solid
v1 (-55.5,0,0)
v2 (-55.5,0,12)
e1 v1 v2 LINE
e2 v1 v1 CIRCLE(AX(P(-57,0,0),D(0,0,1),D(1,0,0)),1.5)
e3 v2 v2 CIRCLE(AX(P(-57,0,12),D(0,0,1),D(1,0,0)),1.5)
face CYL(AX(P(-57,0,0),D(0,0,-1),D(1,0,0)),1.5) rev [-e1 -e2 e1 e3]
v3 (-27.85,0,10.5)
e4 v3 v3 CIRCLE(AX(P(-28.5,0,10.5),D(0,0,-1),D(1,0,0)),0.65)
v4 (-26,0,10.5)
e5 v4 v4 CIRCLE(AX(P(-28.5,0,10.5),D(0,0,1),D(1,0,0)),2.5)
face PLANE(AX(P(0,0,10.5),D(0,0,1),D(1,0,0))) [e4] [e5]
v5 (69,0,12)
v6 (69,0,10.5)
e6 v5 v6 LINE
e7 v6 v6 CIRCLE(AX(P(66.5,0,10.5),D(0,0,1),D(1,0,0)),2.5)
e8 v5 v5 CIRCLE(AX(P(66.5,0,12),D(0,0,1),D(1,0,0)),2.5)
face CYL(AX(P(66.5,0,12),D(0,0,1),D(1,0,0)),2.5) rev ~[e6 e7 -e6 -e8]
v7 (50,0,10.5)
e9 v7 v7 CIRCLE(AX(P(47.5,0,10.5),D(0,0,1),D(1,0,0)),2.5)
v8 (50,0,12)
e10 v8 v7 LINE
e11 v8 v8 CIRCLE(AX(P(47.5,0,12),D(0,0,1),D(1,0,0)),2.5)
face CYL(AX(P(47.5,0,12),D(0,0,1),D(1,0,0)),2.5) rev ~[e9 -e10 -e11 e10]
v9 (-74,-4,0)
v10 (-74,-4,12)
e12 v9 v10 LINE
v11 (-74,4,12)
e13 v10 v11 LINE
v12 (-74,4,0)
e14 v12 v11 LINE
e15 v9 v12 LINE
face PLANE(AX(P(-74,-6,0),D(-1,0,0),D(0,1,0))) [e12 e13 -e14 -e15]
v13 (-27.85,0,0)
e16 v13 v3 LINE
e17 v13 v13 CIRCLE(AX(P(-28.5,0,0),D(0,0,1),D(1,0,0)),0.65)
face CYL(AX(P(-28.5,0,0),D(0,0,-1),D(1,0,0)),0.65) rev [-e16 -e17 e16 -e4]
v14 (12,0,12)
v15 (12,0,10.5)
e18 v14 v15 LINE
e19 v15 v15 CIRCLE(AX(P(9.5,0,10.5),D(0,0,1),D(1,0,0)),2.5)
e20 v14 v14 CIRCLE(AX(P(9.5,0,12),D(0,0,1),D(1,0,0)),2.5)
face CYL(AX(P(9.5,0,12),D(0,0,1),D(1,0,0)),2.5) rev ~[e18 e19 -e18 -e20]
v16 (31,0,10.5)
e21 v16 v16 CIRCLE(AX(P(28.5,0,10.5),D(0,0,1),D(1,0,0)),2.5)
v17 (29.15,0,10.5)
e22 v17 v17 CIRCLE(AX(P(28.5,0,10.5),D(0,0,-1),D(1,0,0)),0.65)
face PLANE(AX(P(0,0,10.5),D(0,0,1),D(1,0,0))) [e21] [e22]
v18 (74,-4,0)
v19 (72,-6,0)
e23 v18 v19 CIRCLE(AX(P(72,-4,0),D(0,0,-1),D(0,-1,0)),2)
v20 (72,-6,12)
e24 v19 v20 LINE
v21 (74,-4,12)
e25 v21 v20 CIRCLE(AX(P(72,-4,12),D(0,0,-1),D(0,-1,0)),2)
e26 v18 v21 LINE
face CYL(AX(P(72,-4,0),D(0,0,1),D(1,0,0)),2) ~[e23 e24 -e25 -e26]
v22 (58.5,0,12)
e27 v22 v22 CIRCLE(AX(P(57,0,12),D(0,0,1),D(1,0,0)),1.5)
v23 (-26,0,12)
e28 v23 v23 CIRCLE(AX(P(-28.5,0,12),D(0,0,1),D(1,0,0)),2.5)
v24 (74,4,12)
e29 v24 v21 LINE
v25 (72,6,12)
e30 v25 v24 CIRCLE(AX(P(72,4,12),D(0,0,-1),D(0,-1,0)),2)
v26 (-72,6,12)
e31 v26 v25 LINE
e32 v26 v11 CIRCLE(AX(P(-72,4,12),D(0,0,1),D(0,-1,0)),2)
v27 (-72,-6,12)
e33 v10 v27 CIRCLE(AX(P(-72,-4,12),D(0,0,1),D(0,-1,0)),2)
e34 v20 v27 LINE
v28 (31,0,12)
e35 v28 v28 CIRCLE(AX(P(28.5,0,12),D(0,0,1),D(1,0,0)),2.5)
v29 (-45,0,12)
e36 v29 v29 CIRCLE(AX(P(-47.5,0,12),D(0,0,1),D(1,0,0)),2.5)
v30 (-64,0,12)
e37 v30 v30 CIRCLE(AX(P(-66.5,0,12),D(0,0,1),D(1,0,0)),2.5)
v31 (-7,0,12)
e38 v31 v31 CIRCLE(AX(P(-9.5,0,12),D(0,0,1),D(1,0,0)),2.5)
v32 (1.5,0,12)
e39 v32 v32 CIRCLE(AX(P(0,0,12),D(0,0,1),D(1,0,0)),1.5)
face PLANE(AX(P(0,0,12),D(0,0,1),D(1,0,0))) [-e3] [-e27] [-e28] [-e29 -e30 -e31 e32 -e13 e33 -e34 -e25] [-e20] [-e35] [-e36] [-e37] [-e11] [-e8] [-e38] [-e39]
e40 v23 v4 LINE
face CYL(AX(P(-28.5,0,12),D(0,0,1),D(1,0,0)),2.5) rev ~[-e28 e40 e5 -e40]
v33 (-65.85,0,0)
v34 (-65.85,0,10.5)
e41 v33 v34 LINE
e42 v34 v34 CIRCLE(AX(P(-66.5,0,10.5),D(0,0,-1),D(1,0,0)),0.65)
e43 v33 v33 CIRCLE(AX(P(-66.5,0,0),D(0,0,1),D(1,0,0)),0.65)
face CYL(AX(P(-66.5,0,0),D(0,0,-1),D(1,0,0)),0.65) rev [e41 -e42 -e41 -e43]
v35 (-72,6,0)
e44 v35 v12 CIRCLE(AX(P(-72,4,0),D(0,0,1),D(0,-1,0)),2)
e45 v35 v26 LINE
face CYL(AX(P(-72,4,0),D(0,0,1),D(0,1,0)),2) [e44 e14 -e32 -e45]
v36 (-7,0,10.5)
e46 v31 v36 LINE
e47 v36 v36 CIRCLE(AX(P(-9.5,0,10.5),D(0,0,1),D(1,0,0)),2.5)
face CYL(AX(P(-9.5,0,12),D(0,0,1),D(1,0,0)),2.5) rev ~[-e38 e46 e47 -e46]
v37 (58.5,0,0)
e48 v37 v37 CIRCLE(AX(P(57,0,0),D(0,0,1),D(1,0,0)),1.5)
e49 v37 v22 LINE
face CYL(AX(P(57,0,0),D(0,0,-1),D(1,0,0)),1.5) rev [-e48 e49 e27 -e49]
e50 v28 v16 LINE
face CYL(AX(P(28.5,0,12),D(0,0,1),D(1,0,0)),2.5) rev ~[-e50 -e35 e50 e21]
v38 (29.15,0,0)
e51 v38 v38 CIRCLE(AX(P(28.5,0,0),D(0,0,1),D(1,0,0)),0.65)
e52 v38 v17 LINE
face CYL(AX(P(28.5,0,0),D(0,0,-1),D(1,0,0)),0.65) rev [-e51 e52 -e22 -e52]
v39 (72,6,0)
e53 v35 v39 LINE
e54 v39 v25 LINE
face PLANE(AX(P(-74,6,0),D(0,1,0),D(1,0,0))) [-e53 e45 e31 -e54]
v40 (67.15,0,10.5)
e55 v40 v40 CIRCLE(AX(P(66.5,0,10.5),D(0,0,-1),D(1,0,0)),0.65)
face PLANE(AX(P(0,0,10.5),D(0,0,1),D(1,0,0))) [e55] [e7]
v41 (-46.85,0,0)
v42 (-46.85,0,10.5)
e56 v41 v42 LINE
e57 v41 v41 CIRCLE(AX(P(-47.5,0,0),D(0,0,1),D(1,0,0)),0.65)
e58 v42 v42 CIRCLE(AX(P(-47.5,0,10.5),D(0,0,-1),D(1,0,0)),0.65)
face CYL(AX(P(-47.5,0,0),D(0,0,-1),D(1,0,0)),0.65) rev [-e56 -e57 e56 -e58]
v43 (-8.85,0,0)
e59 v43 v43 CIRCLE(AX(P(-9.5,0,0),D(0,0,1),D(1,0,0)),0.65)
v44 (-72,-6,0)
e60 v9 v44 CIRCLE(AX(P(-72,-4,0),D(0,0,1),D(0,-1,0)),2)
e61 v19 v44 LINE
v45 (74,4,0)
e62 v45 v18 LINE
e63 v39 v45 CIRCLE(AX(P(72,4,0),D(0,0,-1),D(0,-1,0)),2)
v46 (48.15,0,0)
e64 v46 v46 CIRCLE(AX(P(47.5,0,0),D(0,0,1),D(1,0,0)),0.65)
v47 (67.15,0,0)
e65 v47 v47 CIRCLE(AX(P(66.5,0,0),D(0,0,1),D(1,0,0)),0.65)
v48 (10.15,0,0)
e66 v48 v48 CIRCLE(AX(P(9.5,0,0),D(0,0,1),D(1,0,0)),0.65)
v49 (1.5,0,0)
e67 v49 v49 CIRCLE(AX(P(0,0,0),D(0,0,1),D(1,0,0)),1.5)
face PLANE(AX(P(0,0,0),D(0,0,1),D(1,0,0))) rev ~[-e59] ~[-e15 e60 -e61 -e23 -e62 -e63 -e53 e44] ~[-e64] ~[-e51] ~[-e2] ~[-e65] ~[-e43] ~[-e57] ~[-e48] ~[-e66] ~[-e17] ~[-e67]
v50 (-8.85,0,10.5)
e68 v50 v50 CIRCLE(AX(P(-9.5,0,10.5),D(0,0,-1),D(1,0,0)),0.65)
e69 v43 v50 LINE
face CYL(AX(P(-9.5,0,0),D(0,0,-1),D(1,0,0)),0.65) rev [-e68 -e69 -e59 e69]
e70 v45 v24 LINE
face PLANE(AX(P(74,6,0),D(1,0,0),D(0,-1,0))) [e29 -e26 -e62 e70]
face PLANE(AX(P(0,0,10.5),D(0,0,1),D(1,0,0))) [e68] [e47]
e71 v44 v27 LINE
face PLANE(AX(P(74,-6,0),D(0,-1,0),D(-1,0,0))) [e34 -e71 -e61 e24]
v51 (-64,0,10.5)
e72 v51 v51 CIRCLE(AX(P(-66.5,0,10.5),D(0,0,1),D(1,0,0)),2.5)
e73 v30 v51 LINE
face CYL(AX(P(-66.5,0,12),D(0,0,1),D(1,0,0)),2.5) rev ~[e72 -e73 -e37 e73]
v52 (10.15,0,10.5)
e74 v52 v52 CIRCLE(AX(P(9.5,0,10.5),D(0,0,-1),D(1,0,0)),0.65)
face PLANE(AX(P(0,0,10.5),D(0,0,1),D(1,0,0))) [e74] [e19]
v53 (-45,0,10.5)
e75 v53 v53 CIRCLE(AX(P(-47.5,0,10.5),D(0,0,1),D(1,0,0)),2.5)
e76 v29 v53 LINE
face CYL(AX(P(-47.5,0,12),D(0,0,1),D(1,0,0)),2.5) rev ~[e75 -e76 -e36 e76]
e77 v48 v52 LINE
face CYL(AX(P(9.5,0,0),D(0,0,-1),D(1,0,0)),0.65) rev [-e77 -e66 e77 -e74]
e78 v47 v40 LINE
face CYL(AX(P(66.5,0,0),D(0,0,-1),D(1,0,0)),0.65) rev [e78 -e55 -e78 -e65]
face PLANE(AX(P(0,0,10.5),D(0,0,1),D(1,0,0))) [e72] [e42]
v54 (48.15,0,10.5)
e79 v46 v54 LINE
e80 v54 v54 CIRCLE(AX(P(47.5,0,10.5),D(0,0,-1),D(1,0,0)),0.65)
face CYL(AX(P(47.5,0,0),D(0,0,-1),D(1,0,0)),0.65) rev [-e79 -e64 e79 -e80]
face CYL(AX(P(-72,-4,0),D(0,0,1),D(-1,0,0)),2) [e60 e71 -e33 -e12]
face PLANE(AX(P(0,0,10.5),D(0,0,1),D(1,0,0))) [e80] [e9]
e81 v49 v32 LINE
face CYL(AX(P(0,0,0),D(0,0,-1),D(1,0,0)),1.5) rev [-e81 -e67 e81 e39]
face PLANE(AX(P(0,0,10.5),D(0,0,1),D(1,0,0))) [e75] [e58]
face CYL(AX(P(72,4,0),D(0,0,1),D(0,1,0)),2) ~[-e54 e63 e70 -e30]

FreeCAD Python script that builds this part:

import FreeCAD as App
import Part
import Sketcher

V = App.Vector


def edges_at(feature, points):
    """Names of the edges that pass closest to the given points."""
    edges = feature.Shape.Edges
    near = lambda p: min(range(len(edges)), key=lambda i: edges[i].distToShape(Part.Vertex(*p))[0])
    return sorted({f"Edge{near(p) + 1}" for p in points})

doc = App.newDocument("Part")
body = doc.addObject("PartDesign::Body", "Body")

# Sketch on XY plane
sketch1 = body.newObject("Sketcher::SketchObject", "Sketch")
sketch1.AttachmentSupport = (doc.getObject("XY_Plane"), [""])
sketch1.MapMode = "FlatFace"
sketch1.addGeometry(Part.LineSegment(V(74, 6, 0), V(-74, 6, 0)), False)
sketch1.addGeometry(Part.LineSegment(V(-74, 6, 0), V(-74, -6, 0)), False)
sketch1.addGeometry(Part.LineSegment(V(-74, -6, 0), V(74, -6, 0)), False)
sketch1.addGeometry(Part.LineSegment(V(74, -6, 0), V(74, 6, 0)), False)
sketch1.addGeometry(Part.Circle(V(-66.5, 0, 0), V(0, 0, 1), 0.7), False)
sketch1.addGeometry(Part.Circle(V(-57, 0, 0), V(0, 0, 1), 1.5), False)
sketch1.addGeometry(Part.Circle(V(-47.5, 0, 0), V(0, 0, 1), 0.7), False)
sketch1.addGeometry(Part.Circle(V(-28.5, 0, 0), V(0, 0, 1), 0.7), False)
sketch1.addGeometry(Part.Circle(V(-9.5, 0, 0), V(0, 0, 1), 0.7), False)
sketch1.addGeometry(Part.Circle(V(0, 0, 0), V(0, 0, 1), 1.5), False)
sketch1.addGeometry(Part.Circle(V(9.5, 0, 0), V(0, 0, 1), 0.7), False)
sketch1.addGeometry(Part.Circle(V(28.5, 0, 0), V(0, 0, 1), 0.7), False)
sketch1.addGeometry(Part.Circle(V(47.5, 0, 0), V(0, 0, 1), 0.7), False)
sketch1.addGeometry(Part.Circle(V(57, 0, 0), V(0, 0, 1), 1.5), False)
sketch1.addGeometry(Part.Circle(V(66.5, 0, 0), V(0, 0, 1), 0.7), False)
sketch1.addConstraint(Sketcher.Constraint("Coincident", 0, 2, 1, 1))
sketch1.addConstraint(Sketcher.Constraint("Coincident", 1, 2, 2, 1))
sketch1.addConstraint(Sketcher.Constraint("Coincident", 2, 2, 3, 1))
sketch1.addConstraint(Sketcher.Constraint("Coincident", 3, 2, 0, 1))
sketch1.addConstraint(Sketcher.Constraint("Horizontal", 0))
sketch1.addConstraint(Sketcher.Constraint("Vertical", 1))
sketch1.addConstraint(Sketcher.Constraint("Horizontal", 2))
sketch1.addConstraint(Sketcher.Constraint("Vertical", 3))
sketch1.addConstraint(Sketcher.Constraint("Coincident", 9, 3, -1, 1))
sketch1.addConstraint(Sketcher.Constraint("Equal", 4, 6))
sketch1.addConstraint(Sketcher.Constraint("Equal", 6, 7))
sketch1.addConstraint(Sketcher.Constraint("Equal", 7, 8))
sketch1.addConstraint(Sketcher.Constraint("Equal", 5, 9))
sketch1.addConstraint(Sketcher.Constraint("Equal", 8, 10))
sketch1.addConstraint(Sketcher.Constraint("Equal", 10, 11))
sketch1.addConstraint(Sketcher.Constraint("Equal", 11, 12))
sketch1.addConstraint(Sketcher.Constraint("Equal", 9, 13))
sketch1.addConstraint(Sketcher.Constraint("Equal", 12, 14))
sketch1.addConstraint(Sketcher.Constraint("Symmetric", 8, 3, 10, 3, -1, 1))
sketch1.addConstraint(Sketcher.Constraint("Symmetric", 7, 3, 11, 3, -1, 1))
sketch1.addConstraint(Sketcher.Constraint("Symmetric", 6, 3, 12, 3, -1, 1))
sketch1.addConstraint(Sketcher.Constraint("Symmetric", 5, 3, 13, 3, -1, 1))
sketch1.addConstraint(Sketcher.Constraint("Symmetric", 4, 3, 14, 3, -1, 1))
sketch1.addConstraint(Sketcher.Constraint("Symmetric", 0, 2, 2, 2, -1, 1))
sketch1.addConstraint(Sketcher.Constraint("PointOnObject", 4, 3, -1))
sketch1.addConstraint(Sketcher.Constraint("PointOnObject", 5, 3, -1))
sketch1.addConstraint(Sketcher.Constraint("PointOnObject", 6, 3, -1))
sketch1.addConstraint(Sketcher.Constraint("PointOnObject", 7, 3, -1))
sketch1.addConstraint(Sketcher.Constraint("PointOnObject", 8, 3, -1))
sketch1.addConstraint(Sketcher.Constraint("Diameter", 5, 3.0))
sketch1.addConstraint(Sketcher.Constraint("Diameter", 4, 1.3))
sketch1.addConstraint(Sketcher.Constraint("DistanceX", 0, 2, 0, 1, 148.0))
sketch1.addConstraint(Sketcher.Constraint("DistanceY", 1, 2, 1, 1, 12.0))
sketch1.addConstraint(Sketcher.Constraint("DistanceX", 5, 3, -1, 1, 57.0))
sketch1.addConstraint(Sketcher.Constraint("DistanceX", 4, 3, 6, 3, 19.0))
sketch1.addConstraint(Sketcher.Constraint("DistanceX", 6, 3, 7, 3, 19.0))
sketch1.addConstraint(Sketcher.Constraint("DistanceX", 7, 3, 8, 3, 19.0))
sketch1.addConstraint(Sketcher.Constraint("DistanceX", 8, 3, 10, 3, 19.0))
pad1 = body.newObject("PartDesign::Pad", "Pad")
pad1.Profile = sketch1
pad1.Length = 12

# Sketch on XY plane
sketch2 = body.newObject("Sketcher::SketchObject", "Sketch001")
sketch2.AttachmentSupport = (doc.getObject("XY_Plane"), [""])
sketch2.MapMode = "FlatFace"
sketch2.AttachmentOffset = App.Placement(V(0, 0, 12), App.Rotation())
sketch2.addGeometry(Part.Circle(V(-66.5, 0, 0), V(0, 0, 1), 2.5), False)
sketch2.addGeometry(Part.Circle(V(-47.5, 0, 0), V(0, 0, 1), 2.5), False)
sketch2.addGeometry(Part.Circle(V(-28.5, 0, 0), V(0, 0, 1), 2.5), False)
sketch2.addGeometry(Part.Circle(V(-9.5, 0, 0), V(0, 0, 1), 2.5), False)
sketch2.addGeometry(Part.Circle(V(9.5, 0, 0), V(0, 0, 1), 2.5), False)
sketch2.addGeometry(Part.Circle(V(28.5, 0, 0), V(0, 0, 1), 2.5), False)
sketch2.addGeometry(Part.Circle(V(47.5, 0, 0), V(0, 0, 1), 2.5), False)
sketch2.addGeometry(Part.Circle(V(66.5, 0, 0), V(0, 0, 1), 2.5), False)
sketch2.addConstraint(Sketcher.Constraint("Equal", 0, 1))
sketch2.addConstraint(Sketcher.Constraint("Equal", 1, 2))
sketch2.addConstraint(Sketcher.Constraint("Equal", 2, 3))
sketch2.addConstraint(Sketcher.Constraint("Equal", 3, 4))
sketch2.addConstraint(Sketcher.Constraint("Equal", 4, 5))
sketch2.addConstraint(Sketcher.Constraint("Equal", 5, 6))
sketch2.addConstraint(Sketcher.Constraint("Equal", 6, 7))
sketch2.addConstraint(Sketcher.Constraint("Symmetric", 3, 3, 4, 3, -1, 1))
sketch2.addConstraint(Sketcher.Constraint("Symmetric", 2, 3, 5, 3, -1, 1))
sketch2.addConstraint(Sketcher.Constraint("Symmetric", 1, 3, 6, 3, -1, 1))
sketch2.addConstraint(Sketcher.Constraint("Symmetric", 0, 3, 7, 3, -1, 1))
sketch2.addConstraint(Sketcher.Constraint("PointOnObject", 0, 3, -1))
sketch2.addConstraint(Sketcher.Constraint("PointOnObject", 1, 3, -1))
sketch2.addConstraint(Sketcher.Constraint("PointOnObject", 2, 3, -1))
sketch2.addConstraint(Sketcher.Constraint("PointOnObject", 3, 3, -1))
sketch2.addConstraint(Sketcher.Constraint("Diameter", 0, 5.0))
sketch2.addConstraint(Sketcher.Constraint("DistanceX", 0, 3, 1, 3, 19.0))
sketch2.addConstraint(Sketcher.Constraint("DistanceX", 1, 3, 2, 3, 19.0))
sketch2.addConstraint(Sketcher.Constraint("DistanceX", 2, 3, 3, 3, 19.0))
sketch2.addConstraint(Sketcher.Constraint("DistanceX", 3, 3, 4, 3, 19.0))
pocket1 = body.newObject("PartDesign::Pocket", "Pocket")
pocket1.Profile = sketch2
pocket1.Length = 1.5
doc.recompute()

fillet = body.newObject("PartDesign::Fillet", "Fillet")
fillet.Base = (pocket1, edges_at(pocket1, [
    (-74, -6, 6),
    (74, -6, 6),
    (74, 6, 6),
    (-74, 6, 6),
]))
fillet.Radius = 2

doc.recompute()
